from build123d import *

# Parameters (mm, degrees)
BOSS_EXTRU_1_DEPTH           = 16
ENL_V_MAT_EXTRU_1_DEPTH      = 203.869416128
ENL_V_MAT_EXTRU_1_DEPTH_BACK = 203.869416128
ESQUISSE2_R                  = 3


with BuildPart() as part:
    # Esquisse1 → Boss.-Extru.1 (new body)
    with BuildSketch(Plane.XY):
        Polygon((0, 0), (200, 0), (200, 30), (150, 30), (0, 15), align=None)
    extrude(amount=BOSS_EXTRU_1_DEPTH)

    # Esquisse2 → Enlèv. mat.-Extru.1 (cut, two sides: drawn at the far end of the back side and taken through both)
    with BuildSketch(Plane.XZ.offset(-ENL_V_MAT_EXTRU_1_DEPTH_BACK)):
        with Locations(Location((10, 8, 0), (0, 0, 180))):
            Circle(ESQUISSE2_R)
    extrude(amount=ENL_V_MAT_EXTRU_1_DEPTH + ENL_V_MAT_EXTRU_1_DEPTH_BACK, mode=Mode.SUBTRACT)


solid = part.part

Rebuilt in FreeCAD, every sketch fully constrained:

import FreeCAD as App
import Part
import Sketcher
from FreeCAD import Vector
Q = App.Units.Quantity


def add_polygon(sketch, points):
    """Adds a closed chain of lines whose ends are joined by coincident constraints."""
    first, n = sketch.GeometryCount, len(points)
    for a, b in zip(points, points[1:] + points[:1]):
        sketch.addGeometry(Part.LineSegment(App.Vector(*a, 0), App.Vector(*b, 0)), False)
    for i in range(n):
        sketch.addConstraint(Sketcher.Constraint("Coincident", first + i, 2, first + (i + 1) % n, 1))

doc = App.newDocument("Part")
body = doc.addObject("PartDesign::Body", "Body")

# Sketch on XY plane
sketch1 = body.newObject("Sketcher::SketchObject", "Sketch")
sketch1.AttachmentSupport = (doc.getObject("XY_Plane"), [""])
sketch1.MapMode = "FlatFace"
add_polygon(sketch1, [(0, 0), (200, 0), (200, 30), (150, 30), (0, 15)])  # lines 0-4
sketch1.addConstraint(Sketcher.Constraint("Horizontal", 0))
sketch1.addConstraint(Sketcher.Constraint("Vertical", 1))
sketch1.addConstraint(Sketcher.Constraint("Horizontal", 2))
sketch1.addConstraint(Sketcher.Constraint("Vertical", 4))
sketch1.addConstraint(Sketcher.Constraint("Coincident", 4, 2, -1, 1))
sketch1.addConstraint(Sketcher.Constraint("DistanceX", 0, 1, 0, 2, Q("200 mm")))
sketch1.addConstraint(Sketcher.Constraint("DistanceX", 2, 2, 2, 1, Q("50 mm")))
sketch1.addConstraint(Sketcher.Constraint("DistanceY", 1, 1, 1, 2, Q("30 mm")))
sketch1.addConstraint(Sketcher.Constraint("DistanceY", 4, 2, 4, 1, Q("15 mm")))
pad1 = body.newObject("PartDesign::Pad", "Pad")
pad1.Profile = sketch1
pad1.Length = 16

# Sketch on XZ plane
sketch2 = body.newObject("Sketcher::SketchObject", "Sketch001")
sketch2.AttachmentSupport = (doc.getObject("XZ_Plane"), [""])
sketch2.MapMode = "FlatFace"
sketch2.addGeometry(Part.Circle(Vector(10, 8, 0), Vector(0, 0, 1), 3), False)
sketch2.addConstraint(Sketcher.Constraint("Diameter", 0, Q("6 mm")))
sketch2.addConstraint(Sketcher.Constraint("DistanceX", -1, 1, 0, 3, Q("10 mm")))
sketch2.addConstraint(Sketcher.Constraint("DistanceY", -1, 1, 0, 3, Q("8 mm")))
pocket1 = body.newObject("PartDesign::Pocket", "Pocket")
pocket1.Profile = sketch2
pocket1.Type = "ThroughAll"
pocket1.Midplane = True

doc.recompute()
